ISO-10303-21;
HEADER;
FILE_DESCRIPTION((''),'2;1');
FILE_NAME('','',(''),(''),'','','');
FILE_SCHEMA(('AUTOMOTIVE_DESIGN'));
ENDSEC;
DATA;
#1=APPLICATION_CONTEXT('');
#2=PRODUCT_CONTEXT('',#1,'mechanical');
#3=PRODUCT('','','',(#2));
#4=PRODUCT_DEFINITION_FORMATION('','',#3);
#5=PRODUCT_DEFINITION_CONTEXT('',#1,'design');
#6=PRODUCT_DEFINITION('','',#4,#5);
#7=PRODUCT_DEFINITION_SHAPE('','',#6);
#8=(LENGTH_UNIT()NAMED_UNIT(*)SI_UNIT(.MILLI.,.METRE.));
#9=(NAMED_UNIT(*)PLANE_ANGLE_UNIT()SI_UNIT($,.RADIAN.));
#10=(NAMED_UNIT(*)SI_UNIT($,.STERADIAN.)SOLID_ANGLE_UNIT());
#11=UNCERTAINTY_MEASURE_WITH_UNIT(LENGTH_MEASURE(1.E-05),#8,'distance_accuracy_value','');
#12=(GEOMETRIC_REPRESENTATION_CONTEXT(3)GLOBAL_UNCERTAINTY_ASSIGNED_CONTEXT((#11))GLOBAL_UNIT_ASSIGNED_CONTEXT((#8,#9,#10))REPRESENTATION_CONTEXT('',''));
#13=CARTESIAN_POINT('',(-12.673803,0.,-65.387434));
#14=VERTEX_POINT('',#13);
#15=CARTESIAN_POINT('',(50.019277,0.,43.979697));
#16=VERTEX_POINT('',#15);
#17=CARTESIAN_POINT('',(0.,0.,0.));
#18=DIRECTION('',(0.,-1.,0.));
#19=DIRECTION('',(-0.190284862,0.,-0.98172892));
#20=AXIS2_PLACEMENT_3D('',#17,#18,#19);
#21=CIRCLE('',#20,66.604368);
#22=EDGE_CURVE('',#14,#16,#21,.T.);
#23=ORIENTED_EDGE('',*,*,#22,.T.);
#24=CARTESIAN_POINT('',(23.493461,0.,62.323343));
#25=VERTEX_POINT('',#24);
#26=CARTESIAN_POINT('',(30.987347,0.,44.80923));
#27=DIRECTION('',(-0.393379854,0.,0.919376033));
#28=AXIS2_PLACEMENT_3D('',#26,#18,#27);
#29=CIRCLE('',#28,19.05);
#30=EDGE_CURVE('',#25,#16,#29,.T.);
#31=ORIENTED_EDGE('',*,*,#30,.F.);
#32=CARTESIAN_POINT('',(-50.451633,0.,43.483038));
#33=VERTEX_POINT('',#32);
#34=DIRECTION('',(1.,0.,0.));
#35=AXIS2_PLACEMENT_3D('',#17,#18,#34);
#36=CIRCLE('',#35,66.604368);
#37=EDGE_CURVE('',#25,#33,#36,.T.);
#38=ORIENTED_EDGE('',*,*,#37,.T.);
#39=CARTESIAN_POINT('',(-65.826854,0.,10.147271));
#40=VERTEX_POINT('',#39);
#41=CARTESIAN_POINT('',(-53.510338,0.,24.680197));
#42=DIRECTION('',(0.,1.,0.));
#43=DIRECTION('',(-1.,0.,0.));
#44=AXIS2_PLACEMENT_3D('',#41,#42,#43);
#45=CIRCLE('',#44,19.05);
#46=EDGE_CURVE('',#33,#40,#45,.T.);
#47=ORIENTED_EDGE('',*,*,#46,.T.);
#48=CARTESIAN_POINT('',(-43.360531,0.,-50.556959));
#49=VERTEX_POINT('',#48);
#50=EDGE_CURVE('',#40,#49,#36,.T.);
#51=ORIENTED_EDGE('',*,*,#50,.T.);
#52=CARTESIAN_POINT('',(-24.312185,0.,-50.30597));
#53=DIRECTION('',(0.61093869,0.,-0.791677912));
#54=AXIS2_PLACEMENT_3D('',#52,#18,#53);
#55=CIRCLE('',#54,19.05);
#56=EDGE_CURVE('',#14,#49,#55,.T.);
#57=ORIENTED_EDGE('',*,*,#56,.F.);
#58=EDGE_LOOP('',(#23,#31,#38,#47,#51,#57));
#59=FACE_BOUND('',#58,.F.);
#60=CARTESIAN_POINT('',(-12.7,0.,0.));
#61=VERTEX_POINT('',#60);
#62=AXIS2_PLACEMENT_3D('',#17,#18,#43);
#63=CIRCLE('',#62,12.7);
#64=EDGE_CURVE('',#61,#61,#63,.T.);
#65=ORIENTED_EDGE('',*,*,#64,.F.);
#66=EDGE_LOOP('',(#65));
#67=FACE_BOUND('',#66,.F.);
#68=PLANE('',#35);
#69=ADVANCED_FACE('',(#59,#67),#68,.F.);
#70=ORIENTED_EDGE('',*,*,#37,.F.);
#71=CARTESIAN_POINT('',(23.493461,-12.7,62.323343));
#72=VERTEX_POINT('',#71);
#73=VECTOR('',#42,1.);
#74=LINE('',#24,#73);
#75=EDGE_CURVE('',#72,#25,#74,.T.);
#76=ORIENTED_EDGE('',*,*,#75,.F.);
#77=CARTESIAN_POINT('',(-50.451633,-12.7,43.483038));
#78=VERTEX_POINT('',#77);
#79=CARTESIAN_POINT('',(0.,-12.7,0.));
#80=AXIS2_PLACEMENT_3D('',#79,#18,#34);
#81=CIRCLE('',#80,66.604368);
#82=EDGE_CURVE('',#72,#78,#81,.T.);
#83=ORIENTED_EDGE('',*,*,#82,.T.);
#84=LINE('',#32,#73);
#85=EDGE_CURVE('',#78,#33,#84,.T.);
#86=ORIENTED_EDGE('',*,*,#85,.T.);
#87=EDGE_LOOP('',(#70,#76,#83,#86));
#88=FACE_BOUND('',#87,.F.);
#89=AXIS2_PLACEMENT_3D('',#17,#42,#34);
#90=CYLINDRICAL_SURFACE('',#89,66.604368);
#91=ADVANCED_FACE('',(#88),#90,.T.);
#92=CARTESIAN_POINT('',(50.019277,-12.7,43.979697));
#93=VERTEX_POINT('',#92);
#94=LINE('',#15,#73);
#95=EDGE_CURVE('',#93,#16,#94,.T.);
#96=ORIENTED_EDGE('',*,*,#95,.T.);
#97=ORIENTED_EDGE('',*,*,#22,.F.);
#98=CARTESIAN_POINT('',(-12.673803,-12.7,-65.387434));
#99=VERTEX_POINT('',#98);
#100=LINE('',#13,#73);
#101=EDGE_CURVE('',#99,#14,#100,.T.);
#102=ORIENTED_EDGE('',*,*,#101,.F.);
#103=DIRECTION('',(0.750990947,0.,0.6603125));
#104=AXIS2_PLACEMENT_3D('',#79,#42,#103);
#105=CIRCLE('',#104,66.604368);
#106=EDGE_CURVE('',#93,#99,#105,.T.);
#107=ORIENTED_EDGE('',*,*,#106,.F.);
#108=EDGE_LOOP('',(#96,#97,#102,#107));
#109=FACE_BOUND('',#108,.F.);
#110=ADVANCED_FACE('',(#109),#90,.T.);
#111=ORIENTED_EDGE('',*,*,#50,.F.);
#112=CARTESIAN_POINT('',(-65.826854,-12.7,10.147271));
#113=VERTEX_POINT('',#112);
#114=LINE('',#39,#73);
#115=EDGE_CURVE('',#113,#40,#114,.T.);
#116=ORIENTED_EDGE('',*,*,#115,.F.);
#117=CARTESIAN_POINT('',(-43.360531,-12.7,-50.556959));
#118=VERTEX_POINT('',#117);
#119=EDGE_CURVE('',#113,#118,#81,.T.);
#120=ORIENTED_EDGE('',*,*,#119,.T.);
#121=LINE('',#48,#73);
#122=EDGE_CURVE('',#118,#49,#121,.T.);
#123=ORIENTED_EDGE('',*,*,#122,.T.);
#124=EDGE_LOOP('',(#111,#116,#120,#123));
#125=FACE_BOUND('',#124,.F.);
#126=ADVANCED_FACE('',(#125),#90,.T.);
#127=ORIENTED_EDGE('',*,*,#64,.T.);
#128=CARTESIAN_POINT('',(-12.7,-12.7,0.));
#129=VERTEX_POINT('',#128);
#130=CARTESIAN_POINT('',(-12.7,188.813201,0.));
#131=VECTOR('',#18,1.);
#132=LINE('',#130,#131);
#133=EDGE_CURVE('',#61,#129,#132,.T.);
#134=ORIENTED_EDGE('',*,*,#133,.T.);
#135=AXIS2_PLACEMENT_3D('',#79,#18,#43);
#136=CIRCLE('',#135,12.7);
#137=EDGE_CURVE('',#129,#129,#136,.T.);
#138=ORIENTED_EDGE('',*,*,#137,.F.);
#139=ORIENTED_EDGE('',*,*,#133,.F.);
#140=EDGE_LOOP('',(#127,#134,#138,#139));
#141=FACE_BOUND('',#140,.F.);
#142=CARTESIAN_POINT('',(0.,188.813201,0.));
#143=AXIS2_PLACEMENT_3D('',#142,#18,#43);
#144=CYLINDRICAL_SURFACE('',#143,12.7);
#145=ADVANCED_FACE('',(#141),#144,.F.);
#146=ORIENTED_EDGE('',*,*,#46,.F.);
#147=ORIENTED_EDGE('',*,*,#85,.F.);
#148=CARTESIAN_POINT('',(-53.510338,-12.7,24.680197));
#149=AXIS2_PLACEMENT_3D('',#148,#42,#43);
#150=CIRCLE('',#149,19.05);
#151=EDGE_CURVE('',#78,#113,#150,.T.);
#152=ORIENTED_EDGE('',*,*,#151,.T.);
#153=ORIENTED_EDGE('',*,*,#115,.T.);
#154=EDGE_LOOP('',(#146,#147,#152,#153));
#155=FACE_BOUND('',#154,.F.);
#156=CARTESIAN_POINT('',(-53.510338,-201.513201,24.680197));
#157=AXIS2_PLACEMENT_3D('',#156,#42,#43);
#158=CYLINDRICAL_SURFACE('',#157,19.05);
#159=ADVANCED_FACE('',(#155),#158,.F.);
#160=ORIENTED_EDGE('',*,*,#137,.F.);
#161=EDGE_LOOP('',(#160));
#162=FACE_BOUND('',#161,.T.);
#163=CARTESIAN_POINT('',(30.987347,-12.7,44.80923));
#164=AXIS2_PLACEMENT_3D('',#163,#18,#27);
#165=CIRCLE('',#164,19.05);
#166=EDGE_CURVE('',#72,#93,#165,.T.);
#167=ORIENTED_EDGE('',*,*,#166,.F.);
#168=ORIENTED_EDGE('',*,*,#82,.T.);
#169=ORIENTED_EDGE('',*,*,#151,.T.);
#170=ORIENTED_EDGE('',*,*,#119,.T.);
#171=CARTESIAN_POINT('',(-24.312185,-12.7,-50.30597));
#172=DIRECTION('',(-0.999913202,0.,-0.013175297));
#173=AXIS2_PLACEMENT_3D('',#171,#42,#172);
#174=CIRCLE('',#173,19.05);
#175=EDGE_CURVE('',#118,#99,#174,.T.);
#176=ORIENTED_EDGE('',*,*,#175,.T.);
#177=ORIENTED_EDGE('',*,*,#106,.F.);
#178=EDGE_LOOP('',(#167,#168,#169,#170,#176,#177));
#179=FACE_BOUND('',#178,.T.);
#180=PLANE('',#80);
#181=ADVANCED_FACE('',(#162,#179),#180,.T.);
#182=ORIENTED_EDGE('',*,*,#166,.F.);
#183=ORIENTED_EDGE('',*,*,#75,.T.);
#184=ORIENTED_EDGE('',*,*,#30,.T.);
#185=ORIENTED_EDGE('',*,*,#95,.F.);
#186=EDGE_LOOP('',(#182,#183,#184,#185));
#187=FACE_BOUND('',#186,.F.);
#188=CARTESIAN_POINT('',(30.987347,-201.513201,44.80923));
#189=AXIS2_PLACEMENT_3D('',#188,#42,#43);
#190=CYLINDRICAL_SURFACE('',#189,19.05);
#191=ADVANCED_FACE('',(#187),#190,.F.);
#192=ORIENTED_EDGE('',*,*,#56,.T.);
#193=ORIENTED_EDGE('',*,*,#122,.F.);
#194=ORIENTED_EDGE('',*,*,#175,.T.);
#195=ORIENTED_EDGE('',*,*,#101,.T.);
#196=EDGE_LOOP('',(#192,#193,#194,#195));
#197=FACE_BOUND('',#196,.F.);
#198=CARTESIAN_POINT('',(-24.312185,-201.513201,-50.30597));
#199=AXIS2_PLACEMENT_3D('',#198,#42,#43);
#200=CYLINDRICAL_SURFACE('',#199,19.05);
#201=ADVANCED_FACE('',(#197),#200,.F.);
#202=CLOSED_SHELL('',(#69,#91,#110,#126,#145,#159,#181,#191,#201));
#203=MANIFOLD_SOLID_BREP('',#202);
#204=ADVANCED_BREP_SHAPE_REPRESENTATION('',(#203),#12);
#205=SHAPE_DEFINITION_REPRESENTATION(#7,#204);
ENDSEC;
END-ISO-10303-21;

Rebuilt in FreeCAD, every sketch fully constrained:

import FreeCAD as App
import Part
import Sketcher
Q = App.Units.Quantity

doc = App.newDocument("Part")
body = doc.addObject("PartDesign::Body", "Body")

sketch1 = body.newObject("Sketcher::SketchObject", "Sketch")
sketch1.AttachmentSupport = (doc.getObject("XZ_Plane"), [""])
sketch1.MapMode = "FlatFace"
sketch1.addGeometry(Part.Circle(App.Vector(0, 0, 0), App.Vector(0, 0, 1), 67), False)
sketch1.addConstraint([
    Sketcher.Constraint("Coincident", 0, 3, -1, 1),
    Sketcher.Constraint("Diameter", 0, 133.208736),
])
pad1 = body.newObject("PartDesign::Pad", "Pad")
pad1.Profile = sketch1
pad1.Length = Q("0.5 in")

sketch2 = body.newObject("Sketcher::SketchObject", "Sketch001")
sketch2.AttachmentSupport = (doc.getObject("XZ_Plane"), [""])
sketch2.MapMode = "FlatFace"
sketch2.addGeometry(Part.Circle(App.Vector(0, 0, 0), App.Vector(0, 0, 1), 13), False)
sketch2.addConstraint([
    Sketcher.Constraint("Coincident", 0, 3, -1, 1),
    Sketcher.Constraint("Diameter", 0, Q("1 in")),
])
doc.recompute()
hole = body.newObject("PartDesign::Hole", "Hole")
hole.Profile = sketch2
hole.ThreadType = "None"
hole.Diameter = Q("1 in")
hole.DepthType = "ThroughAll"
hole.Reversed = True

sketch3 = body.newObject("Sketcher::SketchObject", "Sketch002")
sketch3.AttachmentSupport = (doc.getObject("XZ_Plane"), [""])
sketch3.MapMode = "FlatFace"
sketch3.AttachmentOffset = App.Placement(App.Vector(0, 0, 0.5 * 25.4), App.Rotation())
sketch3.addGeometry([
    Part.Circle(App.Vector(-54, 25, 0), App.Vector(0, 0, 1), 19),
    Part.Circle(App.Vector(31, 45, 0), App.Vector(0, 0, 1), 19),
    Part.Circle(App.Vector(-24, -50, 0), App.Vector(0, 0, 1), 19),
], False)
sketch3.addConstraint([
    Sketcher.Constraint("Equal", 0, 1),
    Sketcher.Constraint("Equal", 1, 2),
    Sketcher.Constraint("Diameter", 0, Q("1.5 in")),
    Sketcher.Constraint("DistanceY", 2, 3, 1, 3, 95.1152),
    Sketcher.Constraint("DistanceY", -1, 1, 1, 3, 44.80923),
    Sketcher.Constraint("DistanceX", 0, 3, -1, 1, 53.510338),
    Sketcher.Constraint("DistanceY", -1, 1, 0, 3, 24.680197),
    Sketcher.Constraint("DistanceX", -1, 1, 1, 3, 30.987347),
    Sketcher.Constraint("DistanceX", 2, 3, -1, 1, 24.312185),
])
doc.recompute()
hole2 = body.newObject("PartDesign::Hole", "Hole001")
hole2.Profile = sketch3
hole2.ThreadType = "None"
hole2.Diameter = Q("1.5 in")
hole2.DepthType = "ThroughAll"

doc.recompute()
